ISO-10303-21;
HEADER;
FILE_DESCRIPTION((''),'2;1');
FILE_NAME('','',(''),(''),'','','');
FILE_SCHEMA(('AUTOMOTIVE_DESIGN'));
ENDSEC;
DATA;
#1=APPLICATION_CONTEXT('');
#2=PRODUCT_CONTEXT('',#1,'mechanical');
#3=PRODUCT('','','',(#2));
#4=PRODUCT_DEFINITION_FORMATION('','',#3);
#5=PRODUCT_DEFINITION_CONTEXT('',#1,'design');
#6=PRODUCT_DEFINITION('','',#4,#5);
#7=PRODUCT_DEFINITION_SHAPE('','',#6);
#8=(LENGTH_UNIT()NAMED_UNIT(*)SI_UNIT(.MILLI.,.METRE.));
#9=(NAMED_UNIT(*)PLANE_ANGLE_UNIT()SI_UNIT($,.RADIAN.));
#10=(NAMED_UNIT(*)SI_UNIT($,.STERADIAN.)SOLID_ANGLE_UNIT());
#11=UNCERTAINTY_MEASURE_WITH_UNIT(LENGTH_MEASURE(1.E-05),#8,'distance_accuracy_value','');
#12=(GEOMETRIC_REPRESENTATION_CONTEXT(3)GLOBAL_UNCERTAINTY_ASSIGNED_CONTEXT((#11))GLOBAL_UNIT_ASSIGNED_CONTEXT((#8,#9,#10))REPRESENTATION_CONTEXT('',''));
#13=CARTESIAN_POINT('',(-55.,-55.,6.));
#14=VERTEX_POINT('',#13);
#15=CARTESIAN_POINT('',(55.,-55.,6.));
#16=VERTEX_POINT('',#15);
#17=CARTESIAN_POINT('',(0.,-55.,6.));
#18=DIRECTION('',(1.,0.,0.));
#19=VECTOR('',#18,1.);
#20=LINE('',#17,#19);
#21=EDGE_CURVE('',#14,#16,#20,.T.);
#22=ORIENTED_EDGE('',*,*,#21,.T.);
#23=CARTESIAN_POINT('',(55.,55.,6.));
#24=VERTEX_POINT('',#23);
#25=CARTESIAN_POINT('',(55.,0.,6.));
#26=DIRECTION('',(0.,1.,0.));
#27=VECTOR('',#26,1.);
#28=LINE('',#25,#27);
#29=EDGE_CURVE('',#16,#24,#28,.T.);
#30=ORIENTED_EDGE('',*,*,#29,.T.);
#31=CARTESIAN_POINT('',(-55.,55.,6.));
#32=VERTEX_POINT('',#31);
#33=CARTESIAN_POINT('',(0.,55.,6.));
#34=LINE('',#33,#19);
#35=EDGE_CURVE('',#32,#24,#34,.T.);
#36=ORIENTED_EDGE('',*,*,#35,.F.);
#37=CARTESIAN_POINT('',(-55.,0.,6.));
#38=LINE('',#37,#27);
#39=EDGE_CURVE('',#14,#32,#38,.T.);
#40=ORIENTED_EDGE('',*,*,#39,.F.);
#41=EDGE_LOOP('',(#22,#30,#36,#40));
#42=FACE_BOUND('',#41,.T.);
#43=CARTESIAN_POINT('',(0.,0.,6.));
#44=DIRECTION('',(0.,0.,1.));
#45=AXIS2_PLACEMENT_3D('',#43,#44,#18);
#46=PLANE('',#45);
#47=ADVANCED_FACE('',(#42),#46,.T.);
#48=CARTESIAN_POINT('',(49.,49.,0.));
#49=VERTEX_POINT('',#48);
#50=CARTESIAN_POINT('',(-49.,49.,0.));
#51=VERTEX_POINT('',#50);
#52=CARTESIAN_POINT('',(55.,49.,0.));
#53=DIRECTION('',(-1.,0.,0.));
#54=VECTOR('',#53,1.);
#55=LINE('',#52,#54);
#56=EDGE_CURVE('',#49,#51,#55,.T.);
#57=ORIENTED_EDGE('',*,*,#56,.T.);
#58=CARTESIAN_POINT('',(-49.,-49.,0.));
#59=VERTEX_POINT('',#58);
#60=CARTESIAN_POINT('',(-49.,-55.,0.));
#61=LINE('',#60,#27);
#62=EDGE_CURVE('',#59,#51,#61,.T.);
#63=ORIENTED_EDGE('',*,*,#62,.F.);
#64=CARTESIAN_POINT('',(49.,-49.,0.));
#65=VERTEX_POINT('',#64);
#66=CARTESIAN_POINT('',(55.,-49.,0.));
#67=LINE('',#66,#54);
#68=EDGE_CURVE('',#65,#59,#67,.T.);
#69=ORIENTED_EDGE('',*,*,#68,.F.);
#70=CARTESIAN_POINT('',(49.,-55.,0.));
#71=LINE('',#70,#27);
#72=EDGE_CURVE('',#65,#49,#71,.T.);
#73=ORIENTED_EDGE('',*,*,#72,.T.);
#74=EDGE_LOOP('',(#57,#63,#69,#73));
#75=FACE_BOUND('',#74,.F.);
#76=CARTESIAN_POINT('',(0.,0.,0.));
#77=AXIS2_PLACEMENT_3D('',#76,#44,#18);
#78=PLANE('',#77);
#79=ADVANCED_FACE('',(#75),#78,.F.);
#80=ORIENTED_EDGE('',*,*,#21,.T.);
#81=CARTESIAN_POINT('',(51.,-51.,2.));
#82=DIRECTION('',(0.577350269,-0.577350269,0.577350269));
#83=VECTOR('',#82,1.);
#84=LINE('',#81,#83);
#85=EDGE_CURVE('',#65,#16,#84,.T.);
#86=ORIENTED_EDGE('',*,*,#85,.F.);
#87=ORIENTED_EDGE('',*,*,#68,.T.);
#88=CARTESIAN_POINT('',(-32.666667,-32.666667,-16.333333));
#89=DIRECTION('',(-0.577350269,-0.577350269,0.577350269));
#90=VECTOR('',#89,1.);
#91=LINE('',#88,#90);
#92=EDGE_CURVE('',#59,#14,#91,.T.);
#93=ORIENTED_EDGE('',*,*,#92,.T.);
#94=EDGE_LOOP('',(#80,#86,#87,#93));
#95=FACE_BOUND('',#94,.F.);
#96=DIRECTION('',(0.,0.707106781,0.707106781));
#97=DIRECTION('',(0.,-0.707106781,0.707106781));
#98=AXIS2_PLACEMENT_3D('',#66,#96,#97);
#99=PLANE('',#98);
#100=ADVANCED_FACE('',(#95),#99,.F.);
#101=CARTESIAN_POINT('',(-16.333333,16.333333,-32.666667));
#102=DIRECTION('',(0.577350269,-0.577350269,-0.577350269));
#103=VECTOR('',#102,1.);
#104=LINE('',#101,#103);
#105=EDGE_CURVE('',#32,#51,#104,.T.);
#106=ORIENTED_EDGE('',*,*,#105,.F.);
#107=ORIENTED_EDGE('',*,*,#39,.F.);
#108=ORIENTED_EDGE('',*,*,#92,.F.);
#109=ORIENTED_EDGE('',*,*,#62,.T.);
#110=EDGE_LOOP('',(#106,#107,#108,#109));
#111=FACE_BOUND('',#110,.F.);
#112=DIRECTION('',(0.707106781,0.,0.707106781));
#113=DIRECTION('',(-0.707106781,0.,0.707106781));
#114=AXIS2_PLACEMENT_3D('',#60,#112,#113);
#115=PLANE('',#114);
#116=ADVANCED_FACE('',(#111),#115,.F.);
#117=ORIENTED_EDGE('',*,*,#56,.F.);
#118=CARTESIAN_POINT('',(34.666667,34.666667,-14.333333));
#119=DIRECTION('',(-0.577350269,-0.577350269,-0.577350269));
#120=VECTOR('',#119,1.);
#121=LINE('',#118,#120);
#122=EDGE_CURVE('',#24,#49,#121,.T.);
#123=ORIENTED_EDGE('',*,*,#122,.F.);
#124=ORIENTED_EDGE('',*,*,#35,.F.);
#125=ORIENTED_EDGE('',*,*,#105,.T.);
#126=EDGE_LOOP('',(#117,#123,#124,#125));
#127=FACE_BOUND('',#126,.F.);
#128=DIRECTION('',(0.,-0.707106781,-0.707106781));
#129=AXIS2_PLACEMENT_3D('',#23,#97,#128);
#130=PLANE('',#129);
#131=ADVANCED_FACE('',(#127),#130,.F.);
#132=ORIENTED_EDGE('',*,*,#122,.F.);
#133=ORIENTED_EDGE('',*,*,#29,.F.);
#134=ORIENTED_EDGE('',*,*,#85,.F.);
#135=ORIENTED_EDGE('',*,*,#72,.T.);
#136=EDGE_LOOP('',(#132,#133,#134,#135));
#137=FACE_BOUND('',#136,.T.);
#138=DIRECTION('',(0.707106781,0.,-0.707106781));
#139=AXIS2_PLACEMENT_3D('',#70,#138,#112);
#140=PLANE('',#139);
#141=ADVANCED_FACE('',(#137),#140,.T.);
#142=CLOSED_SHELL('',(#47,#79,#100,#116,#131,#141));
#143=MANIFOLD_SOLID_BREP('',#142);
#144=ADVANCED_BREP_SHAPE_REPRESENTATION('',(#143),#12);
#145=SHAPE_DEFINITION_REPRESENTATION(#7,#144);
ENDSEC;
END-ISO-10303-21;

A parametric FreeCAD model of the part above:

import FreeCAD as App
import Part
import Sketcher
from FreeCAD import Vector

doc = App.newDocument("Part")
params = doc.addObject("Spreadsheet::Sheet", "Params")
for row, (alias, value) in enumerate([
    ("sketch1_width", "110 mm"),
    ("pad1_length", "6 mm"),
    ("sketch2_width", "6 mm"),
    ("pocket1_length", "110 mm"),
    ("sketch3_width", "6 mm"),
    ("pocket2_length", "110 mm"),
], start=1):
    params.set(f"A{row}", alias)
    params.set(f"B{row}", "=" + value)
    params.setAlias(f"B{row}", alias)

body = doc.addObject("PartDesign::Body", "Body")

sketch1 = body.newObject("Sketcher::SketchObject", "Sketch")
sketch1.AttachmentSupport = (doc.getObject("XY_Plane"), [""])
sketch1.MapMode = "FlatFace"
sketch1.addGeometry([
    Part.LineSegment(Vector(-55, 55, 0), Vector(-55, -55, 0)),
    Part.LineSegment(Vector(-55, -55, 0), Vector(55, -55, 0)),
    Part.LineSegment(Vector(55, -55, 0), Vector(55, 55, 0)),
    Part.LineSegment(Vector(55, 55, 0), Vector(-55, 55, 0)),
], False)
sketch1.addConstraint([
    Sketcher.Constraint("Coincident", 0, 2, 1, 1),
    Sketcher.Constraint("Coincident", 1, 2, 2, 1),
    Sketcher.Constraint("Coincident", 2, 2, 3, 1),
    Sketcher.Constraint("Coincident", 3, 2, 0, 1),
    Sketcher.Constraint("Vertical", 0),
    Sketcher.Constraint("Horizontal", 1),
    Sketcher.Constraint("Vertical", 2),
    Sketcher.Constraint("Horizontal", 3),
    Sketcher.Constraint("Symmetric", 0, 2, 2, 2, -1, 1),
    Sketcher.Constraint("Equal", 3, 0),
    Sketcher.Constraint("DistanceX", 1, 1, 1, 2, 110.0),
])
sketch1.setExpression("Constraints[10]", "Params.sketch1_width")
pad1 = body.newObject("PartDesign::Pad", "Pad")
pad1.Profile = sketch1
pad1.setExpression("Length", "Params.pad1_length")

sketch2 = body.newObject("Sketcher::SketchObject", "Sketch001")
sketch2.AttachmentSupport = (doc.getObject("XZ_Plane"), [""])
sketch2.MapMode = "FlatFace"
sketch2.AttachmentOffset = App.Placement(Vector(0, 0, 55), App.Rotation())
sketch2.addGeometry([
    Part.LineSegment(Vector(55, 0, 0), Vector(55, 6, 0)),
    Part.LineSegment(Vector(55, 6, 0), Vector(49, 0, 0)),
    Part.LineSegment(Vector(49, 0, 0), Vector(55, 0, 0)),
    Part.LineSegment(Vector(-55, 6, 0), Vector(-55, 0, 0)),
    Part.LineSegment(Vector(-55, 0, 0), Vector(-49, 0, 0)),
    Part.LineSegment(Vector(-49, 0, 0), Vector(-55, 6, 0)),
], False)
sketch2.addConstraint([
    Sketcher.Constraint("Coincident", 0, 2, 1, 1),
    Sketcher.Constraint("Coincident", 1, 2, 2, 1),
    Sketcher.Constraint("Coincident", 2, 2, 0, 1),
    Sketcher.Constraint("Coincident", 3, 2, 4, 1),
    Sketcher.Constraint("Coincident", 4, 2, 5, 1),
    Sketcher.Constraint("Coincident", 5, 2, 3, 1),
    Sketcher.Constraint("Vertical", 0),
    Sketcher.Constraint("Horizontal", 2),
    Sketcher.Constraint("Vertical", 3),
    Sketcher.Constraint("Horizontal", 4),
    Sketcher.Constraint("Symmetric", 2, 2, 3, 2, -1, 1),
    Sketcher.Constraint("Symmetric", 1, 2, 4, 2, -2),
    Sketcher.Constraint("Perpendicular", 1, 5),
    Sketcher.Constraint("Horizontal", 0, 2, 5, 2),
    Sketcher.Constraint("DistanceX", 2, 1, 2, 2, 6.0),
    Sketcher.Constraint("DistanceX", -1, 1, 0, 2, 55.0),
])
sketch2.setExpression("Constraints[14]", "Params.sketch2_width")
pocket1 = body.newObject("PartDesign::Pocket", "Pocket")
pocket1.Profile = sketch2
pocket1.setExpression("Length", "Params.pocket1_length")

sketch3 = body.newObject("Sketcher::SketchObject", "Sketch002")
sketch3.AttachmentSupport = (doc.getObject("YZ_Plane"), [""])
sketch3.MapMode = "FlatFace"
sketch3.AttachmentOffset = App.Placement(Vector(0, 0, 55), App.Rotation())
sketch3.addGeometry([
    Part.LineSegment(Vector(-55, 6, 0), Vector(-55, 0, 0)),
    Part.LineSegment(Vector(-55, 0, 0), Vector(-49, 0, 0)),
    Part.LineSegment(Vector(-49, 0, 0), Vector(-55, 6, 0)),
    Part.LineSegment(Vector(55, 6, 0), Vector(49, 0, 0)),
    Part.LineSegment(Vector(49, 0, 0), Vector(55, 0, 0)),
    Part.LineSegment(Vector(55, 0, 0), Vector(55, 6, 0)),
], False)
sketch3.addConstraint([
    Sketcher.Constraint("Coincident", 0, 2, 1, 1),
    Sketcher.Constraint("Coincident", 1, 2, 2, 1),
    Sketcher.Constraint("Coincident", 2, 2, 0, 1),
    Sketcher.Constraint("Coincident", 3, 2, 4, 1),
    Sketcher.Constraint("Coincident", 4, 2, 5, 1),
    Sketcher.Constraint("Coincident", 5, 2, 3, 1),
    Sketcher.Constraint("Vertical", 0),
    Sketcher.Constraint("Horizontal", 1),
    Sketcher.Constraint("Horizontal", 4),
    Sketcher.Constraint("Vertical", 5),
    Sketcher.Constraint("Symmetric", 1, 2, 3, 2, -1, 1),
    Sketcher.Constraint("Symmetric", 0, 2, 4, 2, -2),
    Sketcher.Constraint("Perpendicular", 2, 3),
    Sketcher.Constraint("Horizontal", 2, 2, 5, 2),
    Sketcher.Constraint("DistanceX", 1, 1, 1, 2, 6.0),
    Sketcher.Constraint("DistanceX", 0, 2, -1, 1, 55.0),
])
sketch3.setExpression("Constraints[14]", "Params.sketch3_width")
pocket2 = body.newObject("PartDesign::Pocket", "Pocket001")
pocket2.Profile = sketch3
pocket2.setExpression("Length", "Params.pocket2_length")

doc.recompute()
